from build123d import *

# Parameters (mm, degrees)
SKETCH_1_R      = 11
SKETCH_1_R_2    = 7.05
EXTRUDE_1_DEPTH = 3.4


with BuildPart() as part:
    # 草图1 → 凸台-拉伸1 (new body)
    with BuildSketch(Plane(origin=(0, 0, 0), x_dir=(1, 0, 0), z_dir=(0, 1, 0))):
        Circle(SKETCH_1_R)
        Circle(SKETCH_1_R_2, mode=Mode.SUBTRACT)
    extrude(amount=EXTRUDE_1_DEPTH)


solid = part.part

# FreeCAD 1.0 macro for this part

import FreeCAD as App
import Part
import Sketcher

doc = App.newDocument("Part")
params = doc.addObject("Spreadsheet::Sheet", "Params")
for row, (alias, value) in enumerate([
    ("sketch1_diameter", "22 mm"),
    ("sketch1_diameter2", "14.1 mm"),
    ("pad1_length", "3.4 mm"),
], start=1):
    params.set(f"A{row}", alias)
    params.set(f"B{row}", "=" + value)
    params.setAlias(f"B{row}", alias)

body = doc.addObject("PartDesign::Body", "Body")

# Sketch on XZ plane
sketch1 = body.newObject("Sketcher::SketchObject", "Sketch")
sketch1.AttachmentSupport = (doc.getObject("XZ_Plane"), [""])
sketch1.MapMode = "FlatFace"
sketch1.addGeometry([
    Part.Circle(App.Vector(0, 0, 0), App.Vector(0, 0, 1), 11),
    Part.Circle(App.Vector(0, 0, 0), App.Vector(0, 0, 1), 7),
], False)
sketch1.addConstraint([
    Sketcher.Constraint("Coincident", 0, 3, -1, 1),
    Sketcher.Constraint("Coincident", 1, 3, -1, 1),
    Sketcher.Constraint("Diameter", 0, 22.0),
    Sketcher.Constraint("Diameter", 1, 14.1),
])
sketch1.setExpression("Constraints[2]", "Params.sketch1_diameter")
sketch1.setExpression("Constraints[3]", "Params.sketch1_diameter2")
pad1 = body.newObject("PartDesign::Pad", "Pad")
pad1.Profile = sketch1
pad1.setExpression("Length", "Params.pad1_length")
pad1.Reversed = True

doc.recompute()
